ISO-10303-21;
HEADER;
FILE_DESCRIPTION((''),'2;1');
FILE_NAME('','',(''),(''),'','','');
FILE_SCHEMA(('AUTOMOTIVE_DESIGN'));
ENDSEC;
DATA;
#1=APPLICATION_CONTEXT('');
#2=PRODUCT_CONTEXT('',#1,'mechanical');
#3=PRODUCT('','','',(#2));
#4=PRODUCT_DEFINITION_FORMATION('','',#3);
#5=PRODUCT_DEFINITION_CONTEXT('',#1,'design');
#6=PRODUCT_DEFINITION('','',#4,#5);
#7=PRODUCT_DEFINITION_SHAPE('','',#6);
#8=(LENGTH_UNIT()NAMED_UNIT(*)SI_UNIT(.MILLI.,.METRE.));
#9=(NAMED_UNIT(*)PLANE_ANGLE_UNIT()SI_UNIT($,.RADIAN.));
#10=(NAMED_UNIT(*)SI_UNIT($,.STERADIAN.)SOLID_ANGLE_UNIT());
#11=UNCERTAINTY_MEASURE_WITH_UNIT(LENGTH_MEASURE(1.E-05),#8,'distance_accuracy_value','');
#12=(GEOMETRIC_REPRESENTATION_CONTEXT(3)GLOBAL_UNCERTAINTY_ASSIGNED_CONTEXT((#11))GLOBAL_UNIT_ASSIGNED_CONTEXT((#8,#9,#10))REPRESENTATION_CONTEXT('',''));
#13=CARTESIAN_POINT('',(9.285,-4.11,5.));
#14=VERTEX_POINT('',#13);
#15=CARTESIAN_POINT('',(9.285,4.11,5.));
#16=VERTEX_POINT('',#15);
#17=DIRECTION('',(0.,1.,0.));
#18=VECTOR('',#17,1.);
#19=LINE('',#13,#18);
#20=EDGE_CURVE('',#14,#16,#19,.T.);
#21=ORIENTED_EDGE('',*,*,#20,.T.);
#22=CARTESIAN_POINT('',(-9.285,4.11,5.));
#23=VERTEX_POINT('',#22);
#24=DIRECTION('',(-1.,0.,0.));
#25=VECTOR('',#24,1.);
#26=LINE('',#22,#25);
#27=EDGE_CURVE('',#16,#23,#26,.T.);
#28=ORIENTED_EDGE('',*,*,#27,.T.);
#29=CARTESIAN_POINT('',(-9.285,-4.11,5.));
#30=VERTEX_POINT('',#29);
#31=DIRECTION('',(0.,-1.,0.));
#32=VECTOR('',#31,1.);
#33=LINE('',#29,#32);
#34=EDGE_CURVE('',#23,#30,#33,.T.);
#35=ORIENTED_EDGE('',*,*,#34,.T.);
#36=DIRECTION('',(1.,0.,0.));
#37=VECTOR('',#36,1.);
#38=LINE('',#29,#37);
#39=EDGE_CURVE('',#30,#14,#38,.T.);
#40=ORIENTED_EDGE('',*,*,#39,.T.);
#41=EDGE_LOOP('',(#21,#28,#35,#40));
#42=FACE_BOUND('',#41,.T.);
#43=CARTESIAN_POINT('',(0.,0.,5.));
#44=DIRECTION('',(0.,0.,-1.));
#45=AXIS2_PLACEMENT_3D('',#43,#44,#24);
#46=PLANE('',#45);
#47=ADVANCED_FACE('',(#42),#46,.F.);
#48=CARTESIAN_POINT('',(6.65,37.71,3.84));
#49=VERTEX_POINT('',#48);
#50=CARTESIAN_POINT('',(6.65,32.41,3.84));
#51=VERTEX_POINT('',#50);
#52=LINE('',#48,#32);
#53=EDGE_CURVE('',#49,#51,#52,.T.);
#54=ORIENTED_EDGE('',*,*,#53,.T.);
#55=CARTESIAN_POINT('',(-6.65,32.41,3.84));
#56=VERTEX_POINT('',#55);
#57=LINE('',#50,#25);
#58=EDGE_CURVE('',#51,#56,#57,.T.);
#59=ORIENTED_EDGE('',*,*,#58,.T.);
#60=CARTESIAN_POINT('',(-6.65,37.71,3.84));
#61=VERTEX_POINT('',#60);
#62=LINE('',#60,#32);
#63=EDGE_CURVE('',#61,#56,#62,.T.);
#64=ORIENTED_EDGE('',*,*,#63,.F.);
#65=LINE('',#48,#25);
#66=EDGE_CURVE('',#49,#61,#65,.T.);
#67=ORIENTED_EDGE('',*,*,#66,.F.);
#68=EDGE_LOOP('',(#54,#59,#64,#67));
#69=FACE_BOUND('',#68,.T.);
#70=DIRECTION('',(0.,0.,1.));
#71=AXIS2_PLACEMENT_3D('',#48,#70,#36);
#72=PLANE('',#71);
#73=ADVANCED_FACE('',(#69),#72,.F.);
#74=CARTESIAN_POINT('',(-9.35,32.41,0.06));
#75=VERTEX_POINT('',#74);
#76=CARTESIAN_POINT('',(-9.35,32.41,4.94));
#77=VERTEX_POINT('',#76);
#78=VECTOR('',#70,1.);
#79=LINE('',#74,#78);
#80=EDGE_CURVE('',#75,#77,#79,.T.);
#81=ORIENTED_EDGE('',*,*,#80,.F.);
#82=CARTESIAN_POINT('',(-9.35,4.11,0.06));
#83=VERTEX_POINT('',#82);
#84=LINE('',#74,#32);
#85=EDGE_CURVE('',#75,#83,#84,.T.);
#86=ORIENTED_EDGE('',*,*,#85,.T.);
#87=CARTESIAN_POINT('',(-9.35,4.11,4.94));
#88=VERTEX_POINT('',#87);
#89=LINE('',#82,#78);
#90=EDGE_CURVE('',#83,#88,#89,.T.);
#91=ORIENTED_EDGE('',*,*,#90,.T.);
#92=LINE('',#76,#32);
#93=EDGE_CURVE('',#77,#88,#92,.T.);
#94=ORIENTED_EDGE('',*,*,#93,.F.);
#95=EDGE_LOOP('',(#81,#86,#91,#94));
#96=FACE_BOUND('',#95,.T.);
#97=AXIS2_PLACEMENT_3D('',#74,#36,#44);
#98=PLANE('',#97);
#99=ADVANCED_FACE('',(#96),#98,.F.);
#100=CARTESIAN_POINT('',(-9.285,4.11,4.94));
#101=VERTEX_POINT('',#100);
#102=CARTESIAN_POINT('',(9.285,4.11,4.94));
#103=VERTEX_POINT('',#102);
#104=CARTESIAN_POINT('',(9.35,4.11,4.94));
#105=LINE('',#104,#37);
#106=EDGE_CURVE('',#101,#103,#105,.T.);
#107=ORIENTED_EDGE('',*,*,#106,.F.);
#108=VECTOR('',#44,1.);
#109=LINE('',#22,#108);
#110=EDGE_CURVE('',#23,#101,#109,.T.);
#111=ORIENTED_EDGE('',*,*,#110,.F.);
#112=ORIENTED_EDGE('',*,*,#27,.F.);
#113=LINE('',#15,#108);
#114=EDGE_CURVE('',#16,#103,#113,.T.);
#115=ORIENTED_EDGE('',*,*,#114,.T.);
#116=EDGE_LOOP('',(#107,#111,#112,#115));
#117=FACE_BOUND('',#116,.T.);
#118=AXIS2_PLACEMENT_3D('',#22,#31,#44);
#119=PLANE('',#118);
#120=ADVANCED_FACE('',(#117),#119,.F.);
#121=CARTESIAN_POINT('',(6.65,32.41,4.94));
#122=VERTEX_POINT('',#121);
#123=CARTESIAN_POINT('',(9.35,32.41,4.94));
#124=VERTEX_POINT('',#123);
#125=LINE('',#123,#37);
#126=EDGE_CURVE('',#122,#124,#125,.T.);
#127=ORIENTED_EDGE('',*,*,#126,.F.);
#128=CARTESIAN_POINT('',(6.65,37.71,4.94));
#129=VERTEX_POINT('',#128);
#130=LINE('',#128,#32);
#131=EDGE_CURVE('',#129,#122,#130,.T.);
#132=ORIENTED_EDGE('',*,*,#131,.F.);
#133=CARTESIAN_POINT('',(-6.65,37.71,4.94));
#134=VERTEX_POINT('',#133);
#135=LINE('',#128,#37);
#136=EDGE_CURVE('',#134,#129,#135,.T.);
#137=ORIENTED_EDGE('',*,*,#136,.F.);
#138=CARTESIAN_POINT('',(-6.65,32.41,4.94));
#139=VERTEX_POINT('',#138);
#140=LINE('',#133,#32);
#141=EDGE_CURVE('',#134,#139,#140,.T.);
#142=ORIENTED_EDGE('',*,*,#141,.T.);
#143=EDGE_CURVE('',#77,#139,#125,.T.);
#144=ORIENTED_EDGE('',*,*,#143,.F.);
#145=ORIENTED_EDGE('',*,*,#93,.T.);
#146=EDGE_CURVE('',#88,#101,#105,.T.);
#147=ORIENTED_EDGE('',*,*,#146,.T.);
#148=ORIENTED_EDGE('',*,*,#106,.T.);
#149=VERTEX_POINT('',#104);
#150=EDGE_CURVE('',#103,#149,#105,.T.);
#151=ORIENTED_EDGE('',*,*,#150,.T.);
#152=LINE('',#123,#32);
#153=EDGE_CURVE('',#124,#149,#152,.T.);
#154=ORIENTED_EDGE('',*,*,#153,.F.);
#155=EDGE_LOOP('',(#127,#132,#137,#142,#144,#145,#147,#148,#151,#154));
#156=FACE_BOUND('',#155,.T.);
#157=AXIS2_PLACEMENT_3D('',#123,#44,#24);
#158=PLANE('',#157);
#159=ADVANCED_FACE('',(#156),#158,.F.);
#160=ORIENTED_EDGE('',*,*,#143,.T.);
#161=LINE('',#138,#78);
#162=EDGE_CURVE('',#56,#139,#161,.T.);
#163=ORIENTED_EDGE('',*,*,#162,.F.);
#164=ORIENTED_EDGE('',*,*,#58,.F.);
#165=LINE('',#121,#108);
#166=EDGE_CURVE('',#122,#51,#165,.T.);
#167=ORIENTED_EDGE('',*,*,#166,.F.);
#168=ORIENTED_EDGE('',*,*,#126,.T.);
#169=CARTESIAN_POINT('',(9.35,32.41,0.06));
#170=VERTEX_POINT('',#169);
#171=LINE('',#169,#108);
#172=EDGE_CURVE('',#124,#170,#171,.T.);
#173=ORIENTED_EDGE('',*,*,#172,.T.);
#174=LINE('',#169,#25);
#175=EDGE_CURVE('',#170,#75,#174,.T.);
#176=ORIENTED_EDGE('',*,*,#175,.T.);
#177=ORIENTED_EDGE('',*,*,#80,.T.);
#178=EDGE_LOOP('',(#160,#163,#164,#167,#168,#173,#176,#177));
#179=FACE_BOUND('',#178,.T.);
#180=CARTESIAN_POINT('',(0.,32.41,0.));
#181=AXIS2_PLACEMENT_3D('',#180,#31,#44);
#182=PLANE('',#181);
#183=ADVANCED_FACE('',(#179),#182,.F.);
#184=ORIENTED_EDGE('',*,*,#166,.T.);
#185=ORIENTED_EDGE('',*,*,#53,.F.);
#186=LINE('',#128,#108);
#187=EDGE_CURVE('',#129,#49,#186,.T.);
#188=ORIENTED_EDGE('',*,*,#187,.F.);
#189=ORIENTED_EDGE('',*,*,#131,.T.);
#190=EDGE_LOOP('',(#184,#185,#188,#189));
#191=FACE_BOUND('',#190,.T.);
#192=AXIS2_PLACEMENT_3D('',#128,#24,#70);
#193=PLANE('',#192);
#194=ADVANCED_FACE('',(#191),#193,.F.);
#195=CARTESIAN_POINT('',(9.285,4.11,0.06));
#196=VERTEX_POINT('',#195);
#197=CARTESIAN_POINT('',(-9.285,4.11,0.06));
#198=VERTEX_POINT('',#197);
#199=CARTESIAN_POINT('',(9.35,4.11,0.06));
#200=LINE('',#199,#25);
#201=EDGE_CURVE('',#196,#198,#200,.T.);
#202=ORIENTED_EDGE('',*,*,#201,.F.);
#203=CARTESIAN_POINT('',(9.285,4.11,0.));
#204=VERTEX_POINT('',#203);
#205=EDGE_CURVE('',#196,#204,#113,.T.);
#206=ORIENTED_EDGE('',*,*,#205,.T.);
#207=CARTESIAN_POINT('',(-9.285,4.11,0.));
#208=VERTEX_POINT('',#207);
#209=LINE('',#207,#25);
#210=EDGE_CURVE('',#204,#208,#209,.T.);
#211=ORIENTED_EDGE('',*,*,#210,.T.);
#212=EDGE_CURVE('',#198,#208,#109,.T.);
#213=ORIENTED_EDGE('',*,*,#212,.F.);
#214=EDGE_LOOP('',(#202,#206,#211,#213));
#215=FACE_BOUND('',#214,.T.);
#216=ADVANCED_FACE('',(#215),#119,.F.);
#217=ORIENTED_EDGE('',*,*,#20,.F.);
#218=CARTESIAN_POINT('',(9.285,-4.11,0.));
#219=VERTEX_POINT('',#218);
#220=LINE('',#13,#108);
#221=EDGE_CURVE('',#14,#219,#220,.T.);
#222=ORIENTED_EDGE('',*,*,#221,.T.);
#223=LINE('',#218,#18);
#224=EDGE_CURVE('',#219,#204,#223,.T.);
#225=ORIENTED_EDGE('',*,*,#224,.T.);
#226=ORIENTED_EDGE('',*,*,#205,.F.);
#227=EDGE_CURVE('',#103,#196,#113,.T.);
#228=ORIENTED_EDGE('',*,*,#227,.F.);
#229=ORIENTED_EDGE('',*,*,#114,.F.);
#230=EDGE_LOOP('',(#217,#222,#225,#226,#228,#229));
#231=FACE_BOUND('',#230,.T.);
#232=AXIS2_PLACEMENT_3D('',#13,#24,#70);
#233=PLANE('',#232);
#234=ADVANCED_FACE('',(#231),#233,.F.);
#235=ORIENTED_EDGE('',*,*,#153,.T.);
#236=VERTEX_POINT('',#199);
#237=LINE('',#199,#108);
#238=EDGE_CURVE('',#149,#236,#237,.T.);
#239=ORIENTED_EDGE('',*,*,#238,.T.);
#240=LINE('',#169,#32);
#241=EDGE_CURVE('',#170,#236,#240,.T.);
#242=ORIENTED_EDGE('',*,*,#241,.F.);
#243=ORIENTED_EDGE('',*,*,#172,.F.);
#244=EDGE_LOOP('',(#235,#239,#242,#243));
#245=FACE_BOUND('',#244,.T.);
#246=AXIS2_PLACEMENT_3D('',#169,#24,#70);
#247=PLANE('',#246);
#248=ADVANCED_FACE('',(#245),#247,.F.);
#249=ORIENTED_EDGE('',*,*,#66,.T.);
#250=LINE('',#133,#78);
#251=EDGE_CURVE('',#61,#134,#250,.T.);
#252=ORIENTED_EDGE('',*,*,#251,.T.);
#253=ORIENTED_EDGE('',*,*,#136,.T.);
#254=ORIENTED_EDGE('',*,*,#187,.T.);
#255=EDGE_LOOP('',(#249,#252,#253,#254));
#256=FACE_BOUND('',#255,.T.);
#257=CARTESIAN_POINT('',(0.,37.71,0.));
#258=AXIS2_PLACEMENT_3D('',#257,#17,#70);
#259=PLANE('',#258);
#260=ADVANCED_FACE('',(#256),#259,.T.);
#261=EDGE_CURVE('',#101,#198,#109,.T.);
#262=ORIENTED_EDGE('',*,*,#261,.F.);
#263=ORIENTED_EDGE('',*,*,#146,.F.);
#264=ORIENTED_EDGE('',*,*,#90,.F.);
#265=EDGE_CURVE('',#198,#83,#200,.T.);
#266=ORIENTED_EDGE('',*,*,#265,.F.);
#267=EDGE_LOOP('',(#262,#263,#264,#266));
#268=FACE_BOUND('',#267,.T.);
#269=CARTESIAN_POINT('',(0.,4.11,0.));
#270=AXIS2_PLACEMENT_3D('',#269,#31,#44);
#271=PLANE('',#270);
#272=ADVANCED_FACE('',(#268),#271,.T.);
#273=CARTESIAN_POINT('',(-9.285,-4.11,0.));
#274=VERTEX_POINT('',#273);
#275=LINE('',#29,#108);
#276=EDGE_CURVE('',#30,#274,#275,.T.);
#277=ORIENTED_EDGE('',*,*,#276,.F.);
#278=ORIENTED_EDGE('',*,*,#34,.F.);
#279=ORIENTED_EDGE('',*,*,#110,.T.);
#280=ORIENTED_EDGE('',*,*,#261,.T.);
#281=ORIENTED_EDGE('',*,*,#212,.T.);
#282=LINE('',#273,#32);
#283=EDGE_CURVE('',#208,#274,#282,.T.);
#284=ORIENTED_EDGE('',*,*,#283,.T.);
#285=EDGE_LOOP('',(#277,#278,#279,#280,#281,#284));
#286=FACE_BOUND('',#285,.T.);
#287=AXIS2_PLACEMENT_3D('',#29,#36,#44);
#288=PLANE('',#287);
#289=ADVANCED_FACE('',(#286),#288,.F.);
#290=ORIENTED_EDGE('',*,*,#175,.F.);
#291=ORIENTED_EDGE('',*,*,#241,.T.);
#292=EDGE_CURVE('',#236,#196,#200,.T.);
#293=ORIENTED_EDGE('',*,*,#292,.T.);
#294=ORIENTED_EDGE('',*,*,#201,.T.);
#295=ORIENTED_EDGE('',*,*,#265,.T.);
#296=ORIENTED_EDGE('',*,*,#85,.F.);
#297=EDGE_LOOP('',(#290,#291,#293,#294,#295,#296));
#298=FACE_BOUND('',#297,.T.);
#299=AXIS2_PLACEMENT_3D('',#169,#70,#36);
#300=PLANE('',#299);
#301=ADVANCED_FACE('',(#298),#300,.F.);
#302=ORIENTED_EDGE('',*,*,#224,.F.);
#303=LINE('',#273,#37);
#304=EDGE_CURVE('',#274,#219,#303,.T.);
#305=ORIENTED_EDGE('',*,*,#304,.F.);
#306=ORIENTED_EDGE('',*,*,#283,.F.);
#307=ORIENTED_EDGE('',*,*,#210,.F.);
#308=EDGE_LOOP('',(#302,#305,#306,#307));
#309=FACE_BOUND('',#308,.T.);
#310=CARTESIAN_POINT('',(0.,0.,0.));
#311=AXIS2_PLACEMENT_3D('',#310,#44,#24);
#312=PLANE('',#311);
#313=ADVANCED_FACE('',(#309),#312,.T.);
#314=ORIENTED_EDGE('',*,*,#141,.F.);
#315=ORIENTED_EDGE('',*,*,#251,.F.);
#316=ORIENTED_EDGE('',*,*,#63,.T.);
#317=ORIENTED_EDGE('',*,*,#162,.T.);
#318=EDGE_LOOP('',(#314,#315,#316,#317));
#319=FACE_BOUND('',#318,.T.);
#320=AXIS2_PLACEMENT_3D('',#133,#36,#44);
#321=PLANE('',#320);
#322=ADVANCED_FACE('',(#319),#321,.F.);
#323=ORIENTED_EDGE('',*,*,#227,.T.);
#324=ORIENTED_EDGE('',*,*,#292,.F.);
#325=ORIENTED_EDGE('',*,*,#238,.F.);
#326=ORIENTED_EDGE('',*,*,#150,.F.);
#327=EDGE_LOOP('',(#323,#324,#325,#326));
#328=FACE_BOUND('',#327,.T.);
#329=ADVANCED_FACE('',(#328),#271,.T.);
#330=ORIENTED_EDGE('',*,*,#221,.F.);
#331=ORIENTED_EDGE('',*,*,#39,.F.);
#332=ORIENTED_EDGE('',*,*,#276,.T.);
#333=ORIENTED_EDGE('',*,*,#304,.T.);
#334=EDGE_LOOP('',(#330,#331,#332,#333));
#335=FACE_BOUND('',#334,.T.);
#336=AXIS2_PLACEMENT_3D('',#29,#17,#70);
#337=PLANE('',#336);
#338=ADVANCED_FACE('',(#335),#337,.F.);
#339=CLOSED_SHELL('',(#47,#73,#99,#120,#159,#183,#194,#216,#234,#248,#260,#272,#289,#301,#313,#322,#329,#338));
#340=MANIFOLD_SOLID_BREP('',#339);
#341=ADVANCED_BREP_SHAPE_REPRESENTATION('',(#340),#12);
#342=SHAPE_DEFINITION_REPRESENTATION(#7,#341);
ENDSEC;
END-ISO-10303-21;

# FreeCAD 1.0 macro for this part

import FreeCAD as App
import Part
import Sketcher
from FreeCAD import Vector
Q = App.Units.Quantity

doc = App.newDocument("Part")
body = doc.addObject("PartDesign::Body", "Body")

# Sketch on XY plane
sketch1 = body.newObject("Sketcher::SketchObject", "Sketch")
sketch1.AttachmentSupport = (doc.getObject("XY_Plane"), [""])
sketch1.MapMode = "FlatFace"
sketch1.addGeometry(Part.LineSegment(Vector(-9, 4, 0), Vector(-9, -4, 0)), False)
sketch1.addGeometry(Part.LineSegment(Vector(-9, -4, 0), Vector(9, -4, 0)), False)
sketch1.addGeometry(Part.LineSegment(Vector(9, -4, 0), Vector(9, 4, 0)), False)
sketch1.addGeometry(Part.LineSegment(Vector(9, 4, 0), Vector(-9, 4, 0)), False)
sketch1.addConstraint(Sketcher.Constraint("Coincident", 0, 2, 1, 1))
sketch1.addConstraint(Sketcher.Constraint("Coincident", 1, 2, 2, 1))
sketch1.addConstraint(Sketcher.Constraint("Coincident", 2, 2, 3, 1))
sketch1.addConstraint(Sketcher.Constraint("Coincident", 3, 2, 0, 1))
sketch1.addConstraint(Sketcher.Constraint("Vertical", 0))
sketch1.addConstraint(Sketcher.Constraint("Horizontal", 1))
sketch1.addConstraint(Sketcher.Constraint("Vertical", 2))
sketch1.addConstraint(Sketcher.Constraint("Horizontal", 3))
sketch1.addConstraint(Sketcher.Constraint("Symmetric", 0, 2, 2, 2, -1, 1))
sketch1.addConstraint(Sketcher.Constraint("DistanceX", 1, 1, 1, 2, Q("18.57 mm")))
sketch1.addConstraint(Sketcher.Constraint("DistanceY", 0, 2, 0, 1, Q("8.22 mm")))
pad1 = body.newObject("PartDesign::Pad", "Pad")
pad1.Profile = sketch1
pad1.Length = 5

# Sketch on XZ plane
sketch2 = body.newObject("Sketcher::SketchObject", "Sketch001")
sketch2.AttachmentSupport = (doc.getObject("XZ_Plane"), [""])
sketch2.MapMode = "FlatFace"
sketch2.AttachmentOffset = App.Placement(Vector(0, 0, -4.11), App.Rotation())
sketch2.addGeometry(Part.LineSegment(Vector(-9.3, 0.1, 0), Vector(-9.3, 4.9, 0)), False)
sketch2.addGeometry(Part.LineSegment(Vector(-9.3, 4.9, 0), Vector(9.3, 4.9, 0)), False)
sketch2.addGeometry(Part.LineSegment(Vector(9.3, 4.9, 0), Vector(9.3, 0.1, 0)), False)
sketch2.addGeometry(Part.LineSegment(Vector(9.3, 0.1, 0), Vector(-9.3, 0.1, 0)), False)
sketch2.addConstraint(Sketcher.Constraint("Coincident", 0, 2, 1, 1))
sketch2.addConstraint(Sketcher.Constraint("Coincident", 1, 2, 2, 1))
sketch2.addConstraint(Sketcher.Constraint("Coincident", 2, 2, 3, 1))
sketch2.addConstraint(Sketcher.Constraint("Coincident", 3, 2, 0, 1))
sketch2.addConstraint(Sketcher.Constraint("Vertical", 0))
sketch2.addConstraint(Sketcher.Constraint("Horizontal", 1))
sketch2.addConstraint(Sketcher.Constraint("Vertical", 2))
sketch2.addConstraint(Sketcher.Constraint("Horizontal", 3))
sketch2.addConstraint(Sketcher.Constraint("DistanceX", 1, 1, 1, 2, Q("18.7 mm")))
sketch2.addConstraint(Sketcher.Constraint("DistanceY", 0, 1, 0, 2, Q("4.88 mm")))
sketch2.addConstraint(Sketcher.Constraint("DistanceX", 0, 2, -1, 1, Q("9.35 mm")))
sketch2.addConstraint(Sketcher.Constraint("DistanceY", -1, 1, 0, 2, Q("4.94 mm")))
pad2 = body.newObject("PartDesign::Pad", "Pad001")
pad2.Profile = sketch2
pad2.Length = 28.3
pad2.Reversed = True

# Sketch on XZ plane
sketch3 = body.newObject("Sketcher::SketchObject", "Sketch002")
sketch3.AttachmentSupport = (doc.getObject("XZ_Plane"), [""])
sketch3.MapMode = "FlatFace"
sketch3.AttachmentOffset = App.Placement(Vector(0, 0, -32.41), App.Rotation())
sketch3.addGeometry(Part.LineSegment(Vector(-6.7, 3.8, 0), Vector(-6.7, 4.9, 0)), False)
sketch3.addGeometry(Part.LineSegment(Vector(-6.7, 4.9, 0), Vector(6.7, 4.9, 0)), False)
sketch3.addGeometry(Part.LineSegment(Vector(6.7, 4.9, 0), Vector(6.7, 3.8, 0)), False)
sketch3.addGeometry(Part.LineSegment(Vector(6.7, 3.8, 0), Vector(-6.7, 3.8, 0)), False)
sketch3.addConstraint(Sketcher.Constraint("Coincident", 0, 2, 1, 1))
sketch3.addConstraint(Sketcher.Constraint("Coincident", 1, 2, 2, 1))
sketch3.addConstraint(Sketcher.Constraint("Coincident", 2, 2, 3, 1))
sketch3.addConstraint(Sketcher.Constraint("Coincident", 3, 2, 0, 1))
sketch3.addConstraint(Sketcher.Constraint("Vertical", 0))
sketch3.addConstraint(Sketcher.Constraint("Horizontal", 1))
sketch3.addConstraint(Sketcher.Constraint("Vertical", 2))
sketch3.addConstraint(Sketcher.Constraint("Horizontal", 3))
sketch3.addConstraint(Sketcher.Constraint("DistanceX", 1, 1, 1, 2, Q("13.3 mm")))
sketch3.addConstraint(Sketcher.Constraint("DistanceY", 0, 1, 0, 2, Q("1.1 mm")))
sketch3.addConstraint(Sketcher.Constraint("DistanceX", 0, 2, -1, 1, Q("6.65 mm")))
sketch3.addConstraint(Sketcher.Constraint("DistanceY", -1, 1, 0, 2, Q("4.94 mm")))
pad3 = body.newObject("PartDesign::Pad", "Pad002")
pad3.Profile = sketch3
pad3.Length = 5.3
pad3.Reversed = True

doc.recompute()
